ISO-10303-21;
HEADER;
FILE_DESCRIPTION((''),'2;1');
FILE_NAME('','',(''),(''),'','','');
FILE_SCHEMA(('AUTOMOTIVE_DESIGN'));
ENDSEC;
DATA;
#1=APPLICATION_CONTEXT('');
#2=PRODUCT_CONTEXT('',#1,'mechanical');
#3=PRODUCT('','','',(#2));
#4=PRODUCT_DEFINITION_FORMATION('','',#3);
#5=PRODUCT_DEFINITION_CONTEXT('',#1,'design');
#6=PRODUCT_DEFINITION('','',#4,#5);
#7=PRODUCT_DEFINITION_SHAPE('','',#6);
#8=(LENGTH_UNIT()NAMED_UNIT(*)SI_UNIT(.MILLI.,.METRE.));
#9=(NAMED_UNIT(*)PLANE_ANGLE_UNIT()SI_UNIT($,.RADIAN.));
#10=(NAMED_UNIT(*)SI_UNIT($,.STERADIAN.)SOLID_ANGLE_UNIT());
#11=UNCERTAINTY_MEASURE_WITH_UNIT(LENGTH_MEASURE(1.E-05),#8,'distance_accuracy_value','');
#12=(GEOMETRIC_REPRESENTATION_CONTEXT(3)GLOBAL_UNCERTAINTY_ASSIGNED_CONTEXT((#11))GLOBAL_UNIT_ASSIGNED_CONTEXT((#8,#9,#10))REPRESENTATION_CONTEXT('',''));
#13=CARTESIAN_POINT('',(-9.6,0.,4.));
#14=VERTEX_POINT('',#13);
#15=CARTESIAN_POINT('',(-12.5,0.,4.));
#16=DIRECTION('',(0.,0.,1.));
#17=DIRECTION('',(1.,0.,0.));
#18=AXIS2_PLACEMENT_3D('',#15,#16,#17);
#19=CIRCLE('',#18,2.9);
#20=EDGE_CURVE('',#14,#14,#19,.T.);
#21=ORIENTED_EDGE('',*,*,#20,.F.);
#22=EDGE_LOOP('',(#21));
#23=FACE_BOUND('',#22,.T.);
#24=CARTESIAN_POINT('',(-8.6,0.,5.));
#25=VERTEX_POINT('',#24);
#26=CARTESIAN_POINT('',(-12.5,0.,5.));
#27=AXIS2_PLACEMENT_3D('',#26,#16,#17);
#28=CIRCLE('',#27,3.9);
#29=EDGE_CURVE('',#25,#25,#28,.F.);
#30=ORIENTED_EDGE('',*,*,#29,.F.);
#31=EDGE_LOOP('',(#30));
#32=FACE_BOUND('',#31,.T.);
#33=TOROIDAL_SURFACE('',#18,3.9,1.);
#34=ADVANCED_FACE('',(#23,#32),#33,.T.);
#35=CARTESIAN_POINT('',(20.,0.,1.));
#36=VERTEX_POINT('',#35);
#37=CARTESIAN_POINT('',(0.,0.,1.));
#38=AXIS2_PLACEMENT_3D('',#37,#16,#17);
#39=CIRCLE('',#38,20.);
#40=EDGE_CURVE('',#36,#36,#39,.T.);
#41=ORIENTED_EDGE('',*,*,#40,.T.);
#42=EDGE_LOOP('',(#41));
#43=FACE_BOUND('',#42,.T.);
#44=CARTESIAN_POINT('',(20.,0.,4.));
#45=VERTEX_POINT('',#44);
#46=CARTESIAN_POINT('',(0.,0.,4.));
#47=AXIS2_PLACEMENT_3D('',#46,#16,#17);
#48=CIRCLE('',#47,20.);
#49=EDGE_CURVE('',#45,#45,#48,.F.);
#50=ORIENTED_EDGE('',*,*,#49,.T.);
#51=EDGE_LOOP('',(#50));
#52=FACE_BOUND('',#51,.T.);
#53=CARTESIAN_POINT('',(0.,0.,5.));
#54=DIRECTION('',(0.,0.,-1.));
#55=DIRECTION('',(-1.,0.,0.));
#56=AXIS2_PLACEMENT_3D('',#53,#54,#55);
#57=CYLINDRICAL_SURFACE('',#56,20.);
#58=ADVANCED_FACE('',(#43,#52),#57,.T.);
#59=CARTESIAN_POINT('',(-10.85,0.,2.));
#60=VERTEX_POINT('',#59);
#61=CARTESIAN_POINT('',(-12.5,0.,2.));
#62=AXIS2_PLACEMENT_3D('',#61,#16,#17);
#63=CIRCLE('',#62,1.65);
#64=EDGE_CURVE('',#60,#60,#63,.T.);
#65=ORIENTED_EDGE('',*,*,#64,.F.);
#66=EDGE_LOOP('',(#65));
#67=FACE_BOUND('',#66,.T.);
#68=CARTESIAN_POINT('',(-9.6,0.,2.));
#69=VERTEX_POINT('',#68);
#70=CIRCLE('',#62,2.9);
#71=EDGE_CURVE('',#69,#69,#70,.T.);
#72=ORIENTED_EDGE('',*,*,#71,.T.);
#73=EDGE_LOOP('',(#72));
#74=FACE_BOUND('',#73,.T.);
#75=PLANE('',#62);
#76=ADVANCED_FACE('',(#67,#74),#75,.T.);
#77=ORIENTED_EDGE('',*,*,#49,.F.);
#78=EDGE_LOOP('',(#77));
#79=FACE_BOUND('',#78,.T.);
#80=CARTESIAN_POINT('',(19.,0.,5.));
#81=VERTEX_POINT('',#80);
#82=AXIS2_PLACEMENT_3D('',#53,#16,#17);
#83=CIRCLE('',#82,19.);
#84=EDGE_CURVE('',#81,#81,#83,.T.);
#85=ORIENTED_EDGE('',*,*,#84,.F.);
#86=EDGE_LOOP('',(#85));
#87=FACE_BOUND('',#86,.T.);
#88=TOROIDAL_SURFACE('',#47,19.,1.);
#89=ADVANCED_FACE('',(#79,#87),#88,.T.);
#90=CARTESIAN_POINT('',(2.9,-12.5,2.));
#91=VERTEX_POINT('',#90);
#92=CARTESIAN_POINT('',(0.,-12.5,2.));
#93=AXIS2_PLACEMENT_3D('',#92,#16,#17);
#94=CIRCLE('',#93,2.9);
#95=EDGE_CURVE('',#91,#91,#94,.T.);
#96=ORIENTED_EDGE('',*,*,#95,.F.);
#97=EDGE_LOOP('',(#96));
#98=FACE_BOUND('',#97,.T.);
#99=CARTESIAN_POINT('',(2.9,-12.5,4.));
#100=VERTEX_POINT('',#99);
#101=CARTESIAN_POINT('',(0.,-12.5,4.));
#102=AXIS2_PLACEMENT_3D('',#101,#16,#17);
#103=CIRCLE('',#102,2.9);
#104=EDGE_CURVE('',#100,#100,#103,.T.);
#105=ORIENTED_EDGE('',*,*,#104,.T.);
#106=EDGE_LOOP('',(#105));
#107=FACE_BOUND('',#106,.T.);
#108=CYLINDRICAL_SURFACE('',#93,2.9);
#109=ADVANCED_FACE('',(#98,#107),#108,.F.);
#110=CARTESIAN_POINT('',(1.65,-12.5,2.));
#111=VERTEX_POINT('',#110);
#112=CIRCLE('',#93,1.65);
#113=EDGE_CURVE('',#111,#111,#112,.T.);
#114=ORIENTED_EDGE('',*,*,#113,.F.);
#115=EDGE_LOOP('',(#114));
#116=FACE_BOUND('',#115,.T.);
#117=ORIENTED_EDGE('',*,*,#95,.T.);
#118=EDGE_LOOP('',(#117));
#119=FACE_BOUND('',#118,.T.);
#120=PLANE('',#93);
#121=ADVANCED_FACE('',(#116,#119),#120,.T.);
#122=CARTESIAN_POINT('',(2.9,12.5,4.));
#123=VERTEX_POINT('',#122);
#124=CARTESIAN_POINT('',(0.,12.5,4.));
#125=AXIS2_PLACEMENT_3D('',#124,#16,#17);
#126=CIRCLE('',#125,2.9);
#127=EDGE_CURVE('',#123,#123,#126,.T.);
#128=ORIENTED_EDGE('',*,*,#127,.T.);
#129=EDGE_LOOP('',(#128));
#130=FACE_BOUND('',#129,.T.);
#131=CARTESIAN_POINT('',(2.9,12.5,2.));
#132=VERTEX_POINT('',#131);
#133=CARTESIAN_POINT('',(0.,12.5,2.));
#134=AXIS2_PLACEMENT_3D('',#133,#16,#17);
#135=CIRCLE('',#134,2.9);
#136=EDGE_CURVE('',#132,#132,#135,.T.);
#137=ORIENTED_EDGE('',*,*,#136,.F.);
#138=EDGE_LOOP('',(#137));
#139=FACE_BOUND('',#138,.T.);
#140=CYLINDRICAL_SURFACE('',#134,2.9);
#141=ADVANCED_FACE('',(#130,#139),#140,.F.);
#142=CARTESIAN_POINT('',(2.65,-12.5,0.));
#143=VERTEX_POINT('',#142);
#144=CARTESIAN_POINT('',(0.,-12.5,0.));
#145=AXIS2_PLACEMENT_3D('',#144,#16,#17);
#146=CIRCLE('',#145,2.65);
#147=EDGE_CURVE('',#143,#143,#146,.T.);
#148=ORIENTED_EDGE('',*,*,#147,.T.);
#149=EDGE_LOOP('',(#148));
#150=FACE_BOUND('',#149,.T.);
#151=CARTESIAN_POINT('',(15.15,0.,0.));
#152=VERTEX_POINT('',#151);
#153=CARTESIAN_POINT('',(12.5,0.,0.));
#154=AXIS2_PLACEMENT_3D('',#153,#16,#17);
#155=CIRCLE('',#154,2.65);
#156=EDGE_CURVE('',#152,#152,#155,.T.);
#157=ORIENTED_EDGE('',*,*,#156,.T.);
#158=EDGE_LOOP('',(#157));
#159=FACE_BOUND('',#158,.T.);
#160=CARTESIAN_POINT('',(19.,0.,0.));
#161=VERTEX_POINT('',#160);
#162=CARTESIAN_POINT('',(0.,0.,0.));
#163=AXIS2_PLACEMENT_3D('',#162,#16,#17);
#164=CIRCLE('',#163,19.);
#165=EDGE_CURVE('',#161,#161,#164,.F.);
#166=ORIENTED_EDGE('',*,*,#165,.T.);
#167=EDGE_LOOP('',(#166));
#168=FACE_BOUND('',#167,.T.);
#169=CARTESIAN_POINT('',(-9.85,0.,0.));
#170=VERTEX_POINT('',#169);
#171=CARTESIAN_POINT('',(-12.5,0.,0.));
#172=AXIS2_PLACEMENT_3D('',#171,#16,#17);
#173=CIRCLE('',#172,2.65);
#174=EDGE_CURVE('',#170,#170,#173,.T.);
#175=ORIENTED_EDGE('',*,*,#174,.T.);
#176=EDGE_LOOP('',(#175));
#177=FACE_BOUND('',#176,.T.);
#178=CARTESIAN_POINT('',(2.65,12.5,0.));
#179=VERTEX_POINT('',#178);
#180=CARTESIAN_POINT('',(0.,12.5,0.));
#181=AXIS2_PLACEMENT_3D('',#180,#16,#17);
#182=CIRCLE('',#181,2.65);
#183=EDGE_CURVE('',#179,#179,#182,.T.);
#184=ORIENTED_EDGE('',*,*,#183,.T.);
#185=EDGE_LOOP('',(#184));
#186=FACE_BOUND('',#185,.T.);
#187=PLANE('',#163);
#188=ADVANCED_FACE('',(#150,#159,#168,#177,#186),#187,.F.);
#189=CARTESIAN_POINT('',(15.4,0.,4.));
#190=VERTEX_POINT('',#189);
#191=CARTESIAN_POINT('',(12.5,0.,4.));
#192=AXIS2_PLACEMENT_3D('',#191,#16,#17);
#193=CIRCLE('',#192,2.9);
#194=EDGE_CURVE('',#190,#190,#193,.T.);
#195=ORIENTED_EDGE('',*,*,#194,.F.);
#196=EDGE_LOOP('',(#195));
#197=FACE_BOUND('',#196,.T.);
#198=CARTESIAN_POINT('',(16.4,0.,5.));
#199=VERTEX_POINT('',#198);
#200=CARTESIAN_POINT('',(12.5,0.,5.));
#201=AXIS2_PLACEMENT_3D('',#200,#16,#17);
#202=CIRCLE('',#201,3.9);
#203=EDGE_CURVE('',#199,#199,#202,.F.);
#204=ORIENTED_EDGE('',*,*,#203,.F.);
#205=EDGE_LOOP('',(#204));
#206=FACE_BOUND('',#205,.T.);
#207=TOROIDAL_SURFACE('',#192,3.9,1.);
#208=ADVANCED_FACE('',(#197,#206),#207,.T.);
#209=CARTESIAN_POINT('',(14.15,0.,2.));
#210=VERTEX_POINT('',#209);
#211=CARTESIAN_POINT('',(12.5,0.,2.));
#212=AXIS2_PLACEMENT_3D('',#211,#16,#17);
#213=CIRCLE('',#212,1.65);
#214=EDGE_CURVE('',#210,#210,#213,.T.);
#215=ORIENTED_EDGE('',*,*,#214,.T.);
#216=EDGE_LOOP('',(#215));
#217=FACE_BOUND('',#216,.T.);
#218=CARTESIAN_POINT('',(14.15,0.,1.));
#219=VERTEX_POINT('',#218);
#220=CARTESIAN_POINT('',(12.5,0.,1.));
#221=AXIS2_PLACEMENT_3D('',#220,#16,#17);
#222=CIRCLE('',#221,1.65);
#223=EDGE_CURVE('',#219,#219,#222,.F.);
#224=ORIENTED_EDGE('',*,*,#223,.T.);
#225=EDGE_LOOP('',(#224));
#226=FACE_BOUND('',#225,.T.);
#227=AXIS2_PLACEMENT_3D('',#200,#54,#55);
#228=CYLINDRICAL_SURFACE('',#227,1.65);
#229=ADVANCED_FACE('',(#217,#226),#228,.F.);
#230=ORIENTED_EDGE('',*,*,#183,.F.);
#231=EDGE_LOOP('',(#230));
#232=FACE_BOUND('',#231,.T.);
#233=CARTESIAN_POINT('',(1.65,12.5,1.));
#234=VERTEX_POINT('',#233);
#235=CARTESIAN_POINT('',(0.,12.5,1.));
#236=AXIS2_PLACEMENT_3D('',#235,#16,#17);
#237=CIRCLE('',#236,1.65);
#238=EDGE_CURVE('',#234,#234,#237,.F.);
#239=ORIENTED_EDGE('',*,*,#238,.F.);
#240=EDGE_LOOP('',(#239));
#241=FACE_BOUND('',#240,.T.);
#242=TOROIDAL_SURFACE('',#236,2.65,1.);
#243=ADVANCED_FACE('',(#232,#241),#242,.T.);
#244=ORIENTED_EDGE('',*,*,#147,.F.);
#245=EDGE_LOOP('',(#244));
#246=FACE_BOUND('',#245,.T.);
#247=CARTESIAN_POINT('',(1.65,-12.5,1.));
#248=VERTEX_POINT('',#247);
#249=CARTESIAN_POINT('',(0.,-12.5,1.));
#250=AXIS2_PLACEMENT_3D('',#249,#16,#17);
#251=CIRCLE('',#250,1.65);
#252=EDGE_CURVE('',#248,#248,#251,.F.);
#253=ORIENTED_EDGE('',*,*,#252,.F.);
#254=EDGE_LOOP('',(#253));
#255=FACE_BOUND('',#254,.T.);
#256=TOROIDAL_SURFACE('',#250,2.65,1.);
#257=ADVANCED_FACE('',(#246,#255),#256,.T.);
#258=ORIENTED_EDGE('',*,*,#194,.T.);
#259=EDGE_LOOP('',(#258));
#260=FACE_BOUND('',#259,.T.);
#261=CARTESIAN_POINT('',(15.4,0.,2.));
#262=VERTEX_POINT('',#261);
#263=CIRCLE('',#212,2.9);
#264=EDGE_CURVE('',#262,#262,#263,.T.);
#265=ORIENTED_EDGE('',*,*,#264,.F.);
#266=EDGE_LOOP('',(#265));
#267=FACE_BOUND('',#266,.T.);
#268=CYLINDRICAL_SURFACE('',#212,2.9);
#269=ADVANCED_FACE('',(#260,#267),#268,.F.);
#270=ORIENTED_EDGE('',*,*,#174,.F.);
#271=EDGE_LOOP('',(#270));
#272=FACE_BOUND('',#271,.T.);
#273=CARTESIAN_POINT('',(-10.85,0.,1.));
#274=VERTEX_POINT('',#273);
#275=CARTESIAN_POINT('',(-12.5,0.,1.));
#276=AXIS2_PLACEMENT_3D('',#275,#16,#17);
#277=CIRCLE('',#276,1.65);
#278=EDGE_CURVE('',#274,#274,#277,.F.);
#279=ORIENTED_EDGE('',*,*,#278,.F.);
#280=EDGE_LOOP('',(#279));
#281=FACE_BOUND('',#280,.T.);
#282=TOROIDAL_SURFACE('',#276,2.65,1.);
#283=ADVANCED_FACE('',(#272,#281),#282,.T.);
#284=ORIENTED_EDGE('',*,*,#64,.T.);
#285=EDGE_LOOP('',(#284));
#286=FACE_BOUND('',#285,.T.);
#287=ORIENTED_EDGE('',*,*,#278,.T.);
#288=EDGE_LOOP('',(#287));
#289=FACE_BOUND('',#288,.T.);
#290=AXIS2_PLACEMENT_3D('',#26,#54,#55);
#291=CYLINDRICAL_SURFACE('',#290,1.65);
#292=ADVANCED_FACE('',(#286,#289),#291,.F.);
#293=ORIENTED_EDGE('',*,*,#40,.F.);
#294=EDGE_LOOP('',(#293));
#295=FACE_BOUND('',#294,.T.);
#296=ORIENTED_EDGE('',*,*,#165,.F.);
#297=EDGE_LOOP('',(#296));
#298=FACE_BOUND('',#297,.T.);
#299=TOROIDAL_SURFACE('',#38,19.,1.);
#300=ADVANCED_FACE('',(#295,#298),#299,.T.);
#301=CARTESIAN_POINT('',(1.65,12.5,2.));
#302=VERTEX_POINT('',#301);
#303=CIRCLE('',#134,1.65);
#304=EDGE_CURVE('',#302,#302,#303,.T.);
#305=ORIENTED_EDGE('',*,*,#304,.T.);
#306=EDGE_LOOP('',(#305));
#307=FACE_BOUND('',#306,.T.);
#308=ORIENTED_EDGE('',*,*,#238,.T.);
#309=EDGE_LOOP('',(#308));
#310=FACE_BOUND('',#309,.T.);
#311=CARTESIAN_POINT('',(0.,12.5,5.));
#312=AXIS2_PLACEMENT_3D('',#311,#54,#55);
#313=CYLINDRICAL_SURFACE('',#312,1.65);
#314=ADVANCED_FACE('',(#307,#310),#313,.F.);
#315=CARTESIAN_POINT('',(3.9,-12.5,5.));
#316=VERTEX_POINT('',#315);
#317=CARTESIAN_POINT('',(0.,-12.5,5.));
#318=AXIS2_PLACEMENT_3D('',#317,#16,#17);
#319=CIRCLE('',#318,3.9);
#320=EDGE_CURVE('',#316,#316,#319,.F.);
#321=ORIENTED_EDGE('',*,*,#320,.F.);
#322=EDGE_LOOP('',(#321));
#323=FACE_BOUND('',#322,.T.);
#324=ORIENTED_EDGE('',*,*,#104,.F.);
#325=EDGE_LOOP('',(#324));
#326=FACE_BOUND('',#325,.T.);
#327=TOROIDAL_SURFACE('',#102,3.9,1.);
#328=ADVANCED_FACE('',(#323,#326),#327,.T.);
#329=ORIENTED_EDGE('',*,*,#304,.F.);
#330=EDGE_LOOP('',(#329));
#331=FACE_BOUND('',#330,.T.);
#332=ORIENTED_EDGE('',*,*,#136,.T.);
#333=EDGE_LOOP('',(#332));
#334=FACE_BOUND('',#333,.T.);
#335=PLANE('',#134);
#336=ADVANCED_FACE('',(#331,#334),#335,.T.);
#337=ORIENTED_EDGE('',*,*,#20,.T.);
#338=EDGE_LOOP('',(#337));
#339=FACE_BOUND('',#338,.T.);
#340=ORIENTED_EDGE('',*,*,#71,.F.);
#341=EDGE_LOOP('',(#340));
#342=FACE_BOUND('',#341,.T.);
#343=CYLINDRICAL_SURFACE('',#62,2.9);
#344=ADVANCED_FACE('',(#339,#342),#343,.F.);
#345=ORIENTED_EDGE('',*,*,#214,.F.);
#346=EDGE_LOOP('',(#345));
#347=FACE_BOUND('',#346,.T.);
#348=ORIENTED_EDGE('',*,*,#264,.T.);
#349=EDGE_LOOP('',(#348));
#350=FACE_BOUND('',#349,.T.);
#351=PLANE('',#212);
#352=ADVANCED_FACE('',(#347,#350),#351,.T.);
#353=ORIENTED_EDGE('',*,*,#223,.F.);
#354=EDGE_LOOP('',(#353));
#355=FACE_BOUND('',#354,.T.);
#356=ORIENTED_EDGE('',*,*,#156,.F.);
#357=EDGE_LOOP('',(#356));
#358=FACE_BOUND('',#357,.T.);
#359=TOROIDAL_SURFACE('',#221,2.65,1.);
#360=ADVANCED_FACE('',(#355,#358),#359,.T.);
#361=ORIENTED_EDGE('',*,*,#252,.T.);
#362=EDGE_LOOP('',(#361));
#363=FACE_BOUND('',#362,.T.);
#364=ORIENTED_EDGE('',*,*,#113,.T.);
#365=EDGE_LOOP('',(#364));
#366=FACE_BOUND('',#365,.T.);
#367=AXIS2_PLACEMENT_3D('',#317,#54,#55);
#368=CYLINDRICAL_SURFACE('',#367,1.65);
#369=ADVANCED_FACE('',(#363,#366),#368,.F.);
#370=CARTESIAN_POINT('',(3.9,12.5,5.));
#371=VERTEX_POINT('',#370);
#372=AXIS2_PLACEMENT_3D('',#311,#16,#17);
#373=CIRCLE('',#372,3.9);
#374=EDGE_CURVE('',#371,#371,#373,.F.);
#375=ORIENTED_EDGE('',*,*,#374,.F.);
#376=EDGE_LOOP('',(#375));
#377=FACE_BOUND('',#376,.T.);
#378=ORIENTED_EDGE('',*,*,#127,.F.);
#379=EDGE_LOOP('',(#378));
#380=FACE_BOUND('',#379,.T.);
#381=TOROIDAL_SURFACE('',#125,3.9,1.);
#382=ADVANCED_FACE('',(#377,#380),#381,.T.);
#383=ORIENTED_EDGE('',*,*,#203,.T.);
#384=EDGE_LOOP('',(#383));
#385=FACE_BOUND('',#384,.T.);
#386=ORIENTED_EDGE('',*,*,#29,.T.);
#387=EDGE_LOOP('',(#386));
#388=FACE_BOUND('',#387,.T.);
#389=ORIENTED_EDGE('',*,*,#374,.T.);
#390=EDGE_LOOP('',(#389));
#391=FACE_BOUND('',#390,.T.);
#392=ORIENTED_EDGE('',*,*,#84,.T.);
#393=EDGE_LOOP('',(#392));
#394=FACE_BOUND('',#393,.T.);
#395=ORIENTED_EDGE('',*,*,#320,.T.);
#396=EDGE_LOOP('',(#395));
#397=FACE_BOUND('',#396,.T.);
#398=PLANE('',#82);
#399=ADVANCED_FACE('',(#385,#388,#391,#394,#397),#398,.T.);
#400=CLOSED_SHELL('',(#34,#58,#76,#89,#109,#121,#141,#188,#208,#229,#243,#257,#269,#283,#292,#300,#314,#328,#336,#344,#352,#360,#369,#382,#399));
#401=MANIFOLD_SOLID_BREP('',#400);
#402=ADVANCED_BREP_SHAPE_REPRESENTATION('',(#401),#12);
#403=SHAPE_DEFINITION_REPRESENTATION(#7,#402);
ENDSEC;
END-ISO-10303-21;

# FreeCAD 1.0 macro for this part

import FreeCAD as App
import Part
import Sketcher


def edges_at(feature, points):
    """Names of the edges that pass closest to the given points."""
    edges = feature.Shape.Edges
    near = lambda p: min(range(len(edges)), key=lambda i: edges[i].distToShape(Part.Vertex(*p))[0])
    return sorted({f"Edge{near(p) + 1}" for p in points})

doc = App.newDocument("Part")
params = doc.addObject("Spreadsheet::Sheet", "Params")
for row, (alias, value) in enumerate([
    ("sketch1_diameter", "40 mm"),
    ("sketch1_diameter2", "3.3 mm"),
    ("pad1_length", "5 mm"),
    ("sketch2_diameter", "5.8 mm"),
    ("pocket1_length", "3 mm"),
    ("fillet_radius", "1 mm"),
], start=1):
    params.set(f"A{row}", alias)
    params.set(f"B{row}", "=" + value)
    params.setAlias(f"B{row}", alias)

body = doc.addObject("PartDesign::Body", "Body")

# Sketch on XY plane
sketch1 = body.newObject("Sketcher::SketchObject", "Sketch")
sketch1.AttachmentSupport = (doc.getObject("XY_Plane"), [""])
sketch1.MapMode = "FlatFace"
sketch1.addGeometry([
    Part.Circle(App.Vector(0, 0, 0), App.Vector(0, 0, 1), 20),  # 0
    Part.Circle(App.Vector(0, -12.5, 0), App.Vector(0, 0, 1), 1.65),  # 1
    Part.Circle(App.Vector(-12.5, 0, 0), App.Vector(0, 0, 1), 1.65),  # 2
    Part.Circle(App.Vector(12.5, 0, 0), App.Vector(0, 0, 1), 1.65),  # 3
    Part.Circle(App.Vector(0, 12.5, 0), App.Vector(0, 0, 1), 1.65),  # 4
], False)
sketch1.addConstraint([
    Sketcher.Constraint("Coincident", 0, 3, -1, 1),
    Sketcher.Constraint("Equal", 1, 2),
    Sketcher.Constraint("Equal", 2, 3),
    Sketcher.Constraint("Equal", 3, 4),
    Sketcher.Constraint("Symmetric", 2, 3, 3, 3, -1, 1),
    Sketcher.Constraint("Symmetric", 1, 3, 4, 3, -1, 1),
    Sketcher.Constraint("PointOnObject", 1, 3, -2),
    Sketcher.Constraint("PointOnObject", 2, 3, -1),
    Sketcher.Constraint("Diameter", 0, 40.0),
    Sketcher.Constraint("Diameter", 1, 3.3),
    Sketcher.Constraint("DistanceX", 2, 3, 3, 3, 25.0),
    Sketcher.Constraint("DistanceY", 1, 3, 4, 3, 25.0),
])
sketch1.setExpression("Constraints[8]", "Params.sketch1_diameter")
sketch1.setExpression("Constraints[9]", "Params.sketch1_diameter2")
pad1 = body.newObject("PartDesign::Pad", "Pad")
pad1.Profile = sketch1
pad1.setExpression("Length", "Params.pad1_length")

# Sketch on XY plane
sketch2 = body.newObject("Sketcher::SketchObject", "Sketch001")
sketch2.AttachmentSupport = (doc.getObject("XY_Plane"), [""])
sketch2.MapMode = "FlatFace"
sketch2.AttachmentOffset = App.Placement(App.Vector(0, 0, 5), App.Rotation())
sketch2.addGeometry([
    Part.Circle(App.Vector(0, 12.5, 0), App.Vector(0, 0, 1), 2.9),
    Part.Circle(App.Vector(12.5, 0, 0), App.Vector(0, 0, 1), 2.9),
    Part.Circle(App.Vector(0, -12.5, 0), App.Vector(0, 0, 1), 2.9),
    Part.Circle(App.Vector(-12.5, 0, 0), App.Vector(0, 0, 1), 2.9),
], False)
sketch2.addConstraint([
    Sketcher.Constraint("Equal", 0, 1),
    Sketcher.Constraint("Equal", 1, 2),
    Sketcher.Constraint("Equal", 2, 3),
    Sketcher.Constraint("Symmetric", 0, 3, 2, 3, -1, 1),
    Sketcher.Constraint("Symmetric", 1, 3, 3, 3, -1, 1),
    Sketcher.Constraint("PointOnObject", 0, 3, -2),
    Sketcher.Constraint("PointOnObject", 1, 3, -1),
    Sketcher.Constraint("Diameter", 0, 5.8),
    Sketcher.Constraint("DistanceY", 2, 3, 0, 3, 25.0),
    Sketcher.Constraint("DistanceX", 3, 3, 1, 3, 25.0),
])
sketch2.setExpression("Constraints[7]", "Params.sketch2_diameter")
pocket1 = body.newObject("PartDesign::Pocket", "Pocket")
pocket1.Profile = sketch2
pocket1.setExpression("Length", "Params.pocket1_length")
doc.recompute()

fillet = body.newObject("PartDesign::Fillet", "Fillet")
fillet.Base = (pocket1, edges_at(pocket1, [
    (-2.9, 12.5, 5),
    (9.6, 0, 5),
    (-20, 0, 5),
    (-2.9, -12.5, 5),
    (-15.4, 0, 5),
    (-20, 0, 0),
    (10.85, 0, 0),
    (-1.65, -12.5, 0),
    (-14.15, 0, 0),
    (-1.65, 12.5, 0),
]))
fillet.setExpression("Radius", "Params.fillet_radius")

doc.recompute()
